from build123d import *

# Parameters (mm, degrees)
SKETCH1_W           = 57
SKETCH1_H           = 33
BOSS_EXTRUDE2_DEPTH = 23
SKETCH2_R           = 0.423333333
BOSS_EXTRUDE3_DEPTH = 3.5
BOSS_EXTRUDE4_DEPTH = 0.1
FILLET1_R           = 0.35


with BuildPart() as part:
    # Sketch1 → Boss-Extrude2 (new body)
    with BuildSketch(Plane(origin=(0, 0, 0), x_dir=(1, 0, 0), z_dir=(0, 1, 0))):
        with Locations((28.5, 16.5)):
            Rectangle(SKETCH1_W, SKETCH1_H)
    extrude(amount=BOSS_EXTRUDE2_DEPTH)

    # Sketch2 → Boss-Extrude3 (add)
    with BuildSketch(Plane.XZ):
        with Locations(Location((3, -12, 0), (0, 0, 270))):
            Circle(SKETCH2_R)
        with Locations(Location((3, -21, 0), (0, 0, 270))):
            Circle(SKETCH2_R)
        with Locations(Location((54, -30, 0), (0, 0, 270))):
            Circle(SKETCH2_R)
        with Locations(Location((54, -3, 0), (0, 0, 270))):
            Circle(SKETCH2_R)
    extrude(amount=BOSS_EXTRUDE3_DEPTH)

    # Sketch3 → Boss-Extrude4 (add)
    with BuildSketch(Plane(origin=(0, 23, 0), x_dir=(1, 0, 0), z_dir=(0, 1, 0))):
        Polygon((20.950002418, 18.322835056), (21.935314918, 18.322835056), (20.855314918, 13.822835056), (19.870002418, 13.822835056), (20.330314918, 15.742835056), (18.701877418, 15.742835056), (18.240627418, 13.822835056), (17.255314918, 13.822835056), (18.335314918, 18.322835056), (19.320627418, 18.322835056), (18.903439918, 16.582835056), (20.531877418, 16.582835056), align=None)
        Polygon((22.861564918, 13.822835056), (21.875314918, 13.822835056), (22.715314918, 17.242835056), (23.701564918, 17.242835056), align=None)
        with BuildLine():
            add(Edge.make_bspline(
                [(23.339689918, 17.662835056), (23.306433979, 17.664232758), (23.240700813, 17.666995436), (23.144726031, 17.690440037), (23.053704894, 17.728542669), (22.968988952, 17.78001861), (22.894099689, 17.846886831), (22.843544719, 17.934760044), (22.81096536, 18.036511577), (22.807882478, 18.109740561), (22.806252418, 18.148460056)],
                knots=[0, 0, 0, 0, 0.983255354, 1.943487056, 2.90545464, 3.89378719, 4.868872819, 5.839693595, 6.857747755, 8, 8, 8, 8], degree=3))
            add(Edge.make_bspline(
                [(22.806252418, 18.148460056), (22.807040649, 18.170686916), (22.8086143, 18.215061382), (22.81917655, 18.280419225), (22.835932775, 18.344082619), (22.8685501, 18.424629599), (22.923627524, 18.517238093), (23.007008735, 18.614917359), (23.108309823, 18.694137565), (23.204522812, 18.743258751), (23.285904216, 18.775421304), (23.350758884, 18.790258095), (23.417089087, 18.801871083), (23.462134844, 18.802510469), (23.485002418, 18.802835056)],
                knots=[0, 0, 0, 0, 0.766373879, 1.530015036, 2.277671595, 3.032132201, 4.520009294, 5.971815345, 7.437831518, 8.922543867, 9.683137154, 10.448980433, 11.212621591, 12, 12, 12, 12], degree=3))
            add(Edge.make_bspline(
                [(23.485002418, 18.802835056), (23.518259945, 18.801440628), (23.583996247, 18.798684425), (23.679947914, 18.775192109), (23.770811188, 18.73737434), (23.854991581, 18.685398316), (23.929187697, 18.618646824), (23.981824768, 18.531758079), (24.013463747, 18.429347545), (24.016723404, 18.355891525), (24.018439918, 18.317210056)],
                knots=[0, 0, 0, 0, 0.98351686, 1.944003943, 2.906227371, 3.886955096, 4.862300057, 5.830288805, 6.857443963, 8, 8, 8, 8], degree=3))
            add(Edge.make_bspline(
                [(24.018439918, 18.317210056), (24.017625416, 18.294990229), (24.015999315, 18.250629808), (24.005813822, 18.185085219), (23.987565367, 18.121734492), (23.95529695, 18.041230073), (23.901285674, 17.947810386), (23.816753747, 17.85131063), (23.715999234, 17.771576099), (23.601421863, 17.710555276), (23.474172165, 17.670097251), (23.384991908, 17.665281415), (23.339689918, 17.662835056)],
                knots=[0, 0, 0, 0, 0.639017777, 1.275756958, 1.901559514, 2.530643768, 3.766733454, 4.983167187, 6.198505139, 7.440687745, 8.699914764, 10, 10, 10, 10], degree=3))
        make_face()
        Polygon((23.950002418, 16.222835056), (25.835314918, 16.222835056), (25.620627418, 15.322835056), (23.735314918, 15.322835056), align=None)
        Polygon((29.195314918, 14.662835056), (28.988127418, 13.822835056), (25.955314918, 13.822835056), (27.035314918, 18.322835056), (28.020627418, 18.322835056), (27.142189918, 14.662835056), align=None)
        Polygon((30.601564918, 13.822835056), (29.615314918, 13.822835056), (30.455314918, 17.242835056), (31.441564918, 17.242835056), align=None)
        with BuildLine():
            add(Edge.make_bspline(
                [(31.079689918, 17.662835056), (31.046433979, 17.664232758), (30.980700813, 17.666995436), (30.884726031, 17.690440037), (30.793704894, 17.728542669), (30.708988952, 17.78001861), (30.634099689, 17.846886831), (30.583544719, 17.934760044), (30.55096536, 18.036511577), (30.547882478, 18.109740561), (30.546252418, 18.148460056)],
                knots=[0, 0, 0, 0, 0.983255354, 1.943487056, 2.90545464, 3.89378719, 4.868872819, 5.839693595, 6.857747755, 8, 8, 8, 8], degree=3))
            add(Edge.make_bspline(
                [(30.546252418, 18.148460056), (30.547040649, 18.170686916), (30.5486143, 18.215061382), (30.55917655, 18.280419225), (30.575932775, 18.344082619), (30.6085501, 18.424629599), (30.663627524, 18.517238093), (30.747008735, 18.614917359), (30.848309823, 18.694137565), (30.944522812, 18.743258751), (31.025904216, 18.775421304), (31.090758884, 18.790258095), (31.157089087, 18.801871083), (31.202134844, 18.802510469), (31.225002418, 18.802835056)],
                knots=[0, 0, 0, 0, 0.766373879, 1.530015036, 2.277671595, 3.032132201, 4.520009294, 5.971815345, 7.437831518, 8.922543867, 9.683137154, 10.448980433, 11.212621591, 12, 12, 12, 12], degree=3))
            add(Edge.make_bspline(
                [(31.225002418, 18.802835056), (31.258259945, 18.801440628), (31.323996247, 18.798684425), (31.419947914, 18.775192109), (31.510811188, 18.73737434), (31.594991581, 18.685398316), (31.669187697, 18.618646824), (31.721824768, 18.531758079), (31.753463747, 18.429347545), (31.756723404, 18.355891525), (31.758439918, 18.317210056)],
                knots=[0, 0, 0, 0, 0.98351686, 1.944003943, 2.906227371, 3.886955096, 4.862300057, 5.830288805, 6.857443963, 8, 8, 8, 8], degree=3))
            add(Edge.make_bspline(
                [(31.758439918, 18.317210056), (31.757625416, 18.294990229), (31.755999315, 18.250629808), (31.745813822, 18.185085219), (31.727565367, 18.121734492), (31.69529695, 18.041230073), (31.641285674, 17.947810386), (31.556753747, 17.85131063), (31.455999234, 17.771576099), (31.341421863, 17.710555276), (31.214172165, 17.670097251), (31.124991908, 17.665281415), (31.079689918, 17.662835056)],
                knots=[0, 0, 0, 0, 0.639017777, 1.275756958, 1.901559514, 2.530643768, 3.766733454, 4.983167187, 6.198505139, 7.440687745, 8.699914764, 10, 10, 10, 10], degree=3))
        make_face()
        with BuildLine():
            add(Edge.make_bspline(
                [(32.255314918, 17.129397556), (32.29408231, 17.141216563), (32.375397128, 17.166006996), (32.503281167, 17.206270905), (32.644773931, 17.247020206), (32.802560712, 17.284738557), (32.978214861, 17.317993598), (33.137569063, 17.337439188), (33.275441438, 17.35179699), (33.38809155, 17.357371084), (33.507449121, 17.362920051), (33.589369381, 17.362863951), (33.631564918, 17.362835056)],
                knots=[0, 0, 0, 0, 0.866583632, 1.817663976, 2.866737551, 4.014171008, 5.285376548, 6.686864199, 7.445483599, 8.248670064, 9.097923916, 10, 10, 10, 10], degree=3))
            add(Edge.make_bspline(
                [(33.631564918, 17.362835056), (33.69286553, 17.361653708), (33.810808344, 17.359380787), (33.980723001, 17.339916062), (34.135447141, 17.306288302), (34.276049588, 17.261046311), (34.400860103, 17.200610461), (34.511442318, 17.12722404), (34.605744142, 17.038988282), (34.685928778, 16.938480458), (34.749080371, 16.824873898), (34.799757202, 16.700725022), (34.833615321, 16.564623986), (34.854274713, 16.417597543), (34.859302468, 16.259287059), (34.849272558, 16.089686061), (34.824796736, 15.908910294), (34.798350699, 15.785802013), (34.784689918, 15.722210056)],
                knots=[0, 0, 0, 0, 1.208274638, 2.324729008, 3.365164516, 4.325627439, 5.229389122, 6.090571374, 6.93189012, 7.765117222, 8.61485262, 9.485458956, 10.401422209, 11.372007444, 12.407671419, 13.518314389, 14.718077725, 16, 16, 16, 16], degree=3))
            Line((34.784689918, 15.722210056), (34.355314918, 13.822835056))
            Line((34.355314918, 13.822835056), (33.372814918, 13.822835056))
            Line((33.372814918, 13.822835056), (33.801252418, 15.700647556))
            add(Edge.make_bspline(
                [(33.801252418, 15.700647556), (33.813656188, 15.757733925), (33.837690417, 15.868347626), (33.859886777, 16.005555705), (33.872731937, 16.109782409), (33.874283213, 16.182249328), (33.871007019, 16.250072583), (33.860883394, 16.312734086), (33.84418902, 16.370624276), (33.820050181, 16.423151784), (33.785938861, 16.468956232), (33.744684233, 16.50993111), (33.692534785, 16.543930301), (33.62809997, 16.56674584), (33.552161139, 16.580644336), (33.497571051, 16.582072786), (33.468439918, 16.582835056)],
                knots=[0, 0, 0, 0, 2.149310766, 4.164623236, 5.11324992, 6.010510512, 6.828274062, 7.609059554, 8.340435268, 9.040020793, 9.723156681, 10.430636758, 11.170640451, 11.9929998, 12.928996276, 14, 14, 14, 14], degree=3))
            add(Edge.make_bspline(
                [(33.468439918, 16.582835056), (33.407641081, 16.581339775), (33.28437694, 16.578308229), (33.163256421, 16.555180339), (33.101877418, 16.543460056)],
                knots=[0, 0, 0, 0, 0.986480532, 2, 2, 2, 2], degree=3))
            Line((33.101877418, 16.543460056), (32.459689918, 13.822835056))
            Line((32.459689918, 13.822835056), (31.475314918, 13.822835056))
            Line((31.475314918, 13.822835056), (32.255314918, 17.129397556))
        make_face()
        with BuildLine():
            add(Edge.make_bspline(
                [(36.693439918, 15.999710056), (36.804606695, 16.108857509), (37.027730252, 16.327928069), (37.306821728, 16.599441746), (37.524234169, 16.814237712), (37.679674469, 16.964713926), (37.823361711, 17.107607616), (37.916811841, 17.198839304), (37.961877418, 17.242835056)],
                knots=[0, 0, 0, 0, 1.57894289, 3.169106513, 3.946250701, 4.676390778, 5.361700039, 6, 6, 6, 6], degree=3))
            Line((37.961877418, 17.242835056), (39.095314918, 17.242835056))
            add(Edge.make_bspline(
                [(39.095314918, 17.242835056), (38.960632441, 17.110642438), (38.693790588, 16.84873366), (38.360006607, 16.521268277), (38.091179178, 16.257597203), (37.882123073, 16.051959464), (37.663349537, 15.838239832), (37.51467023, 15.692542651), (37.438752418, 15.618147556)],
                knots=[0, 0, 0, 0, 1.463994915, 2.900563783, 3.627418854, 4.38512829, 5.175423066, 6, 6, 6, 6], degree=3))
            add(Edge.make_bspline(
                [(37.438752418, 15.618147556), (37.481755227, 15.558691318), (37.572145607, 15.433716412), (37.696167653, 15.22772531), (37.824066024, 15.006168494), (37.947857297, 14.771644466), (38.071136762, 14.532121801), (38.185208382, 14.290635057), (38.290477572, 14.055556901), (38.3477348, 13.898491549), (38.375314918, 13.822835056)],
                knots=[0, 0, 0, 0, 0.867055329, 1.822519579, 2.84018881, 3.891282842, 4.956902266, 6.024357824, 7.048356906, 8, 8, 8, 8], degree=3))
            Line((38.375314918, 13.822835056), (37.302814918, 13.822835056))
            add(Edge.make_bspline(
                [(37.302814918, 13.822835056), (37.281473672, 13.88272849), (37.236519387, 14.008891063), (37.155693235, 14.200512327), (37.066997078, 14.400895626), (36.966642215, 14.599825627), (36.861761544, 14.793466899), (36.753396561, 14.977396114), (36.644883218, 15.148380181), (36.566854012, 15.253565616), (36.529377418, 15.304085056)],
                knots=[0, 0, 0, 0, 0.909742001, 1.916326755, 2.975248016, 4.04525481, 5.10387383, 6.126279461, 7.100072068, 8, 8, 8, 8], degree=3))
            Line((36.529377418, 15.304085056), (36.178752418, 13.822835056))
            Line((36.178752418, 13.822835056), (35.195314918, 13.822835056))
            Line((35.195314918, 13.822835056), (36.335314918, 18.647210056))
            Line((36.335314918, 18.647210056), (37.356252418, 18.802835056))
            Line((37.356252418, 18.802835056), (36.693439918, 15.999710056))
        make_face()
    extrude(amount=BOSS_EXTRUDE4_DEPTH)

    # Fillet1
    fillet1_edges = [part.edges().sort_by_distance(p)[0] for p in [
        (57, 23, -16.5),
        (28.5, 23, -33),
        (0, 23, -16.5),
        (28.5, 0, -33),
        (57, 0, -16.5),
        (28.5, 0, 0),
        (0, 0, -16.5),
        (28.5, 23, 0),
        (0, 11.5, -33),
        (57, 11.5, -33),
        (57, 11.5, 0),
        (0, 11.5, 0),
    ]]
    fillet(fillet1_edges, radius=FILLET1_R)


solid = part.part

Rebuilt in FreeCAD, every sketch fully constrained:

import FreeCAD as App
import Part
import Sketcher
Q = App.Units.Quantity


def edges_at(feature, points):
    """Names of the edges that pass closest to the given points."""
    edges = feature.Shape.Edges
    near = lambda p: min(range(len(edges)), key=lambda i: edges[i].distToShape(Part.Vertex(*p))[0])
    return sorted({f"Edge{near(p) + 1}" for p in points})

doc = App.newDocument("Part")
params = doc.addObject("Spreadsheet::Sheet", "Params")
for row, (alias, value) in enumerate([
    ("sketch1_width", "57 mm"),
    ("sketch1_height", "33 mm"),
    ("pad1_length", "23 mm"),
    ("pad2_length", "3.5 mm"),
    ("pad3_length", "0.1 mm"),
    ("fillet_radius", "0.35 mm"),
], start=1):
    params.set(f"A{row}", alias)
    params.set(f"B{row}", "=" + value)
    params.setAlias(f"B{row}", alias)

body = doc.addObject("PartDesign::Body", "Body")

# Sketch on XZ plane
sketch1 = body.newObject("Sketcher::SketchObject", "Sketch")
sketch1.AttachmentSupport = (doc.getObject("XZ_Plane"), [""])
sketch1.MapMode = "FlatFace"
sketch1.addGeometry([
    Part.LineSegment(App.Vector(0, -33, 0), App.Vector(0, 0, 0)),
    Part.LineSegment(App.Vector(0, 0, 0), App.Vector(57, 0, 0)),
    Part.LineSegment(App.Vector(57, 0, 0), App.Vector(57, -33, 0)),
    Part.LineSegment(App.Vector(57, -33, 0), App.Vector(0, -33, 0)),
], False)
sketch1.addConstraint([
    Sketcher.Constraint("Coincident", 0, 2, 1, 1),
    Sketcher.Constraint("Coincident", 1, 2, 2, 1),
    Sketcher.Constraint("Coincident", 2, 2, 3, 1),
    Sketcher.Constraint("Coincident", 3, 2, 0, 1),
    Sketcher.Constraint("Vertical", 0),
    Sketcher.Constraint("Horizontal", 1),
    Sketcher.Constraint("Vertical", 2),
    Sketcher.Constraint("Horizontal", 3),
    Sketcher.Constraint("Coincident", 0, 2, -1, 1),
    Sketcher.Constraint("DistanceX", 1, 1, 1, 2, Q("57 mm")),
    Sketcher.Constraint("DistanceY", 0, 1, 0, 2, Q("33 mm")),
])
sketch1.setExpression("Constraints[9]", "Params.sketch1_width")
sketch1.setExpression("Constraints[10]", "Params.sketch1_height")
pad1 = body.newObject("PartDesign::Pad", "Pad")
pad1.Profile = sketch1
pad1.setExpression("Length", "Params.pad1_length")
pad1.Reversed = True

# Sketch on XZ plane
sketch2 = body.newObject("Sketcher::SketchObject", "Sketch001")
sketch2.AttachmentSupport = (doc.getObject("XZ_Plane"), [""])
sketch2.MapMode = "FlatFace"
sketch2.addGeometry([
    Part.Circle(App.Vector(3, -12, 0), App.Vector(0, 0, 1), 0.42),
    Part.Circle(App.Vector(3, -21, 0), App.Vector(0, 0, 1), 0.42),
    Part.Circle(App.Vector(54, -30, 0), App.Vector(0, 0, 1), 0.42),
    Part.Circle(App.Vector(54, -3, 0), App.Vector(0, 0, 1), 0.42),
], False)
sketch2.addConstraint([
    Sketcher.Constraint("Equal", 0, 1),
    Sketcher.Constraint("Equal", 1, 2),
    Sketcher.Constraint("Equal", 2, 3),
    Sketcher.Constraint("Vertical", 0, 3, 1, 3),
    Sketcher.Constraint("Vertical", 2, 3, 3, 3),
    Sketcher.Constraint("DistanceX", -1, 1, 0, 3, Q("3 mm")),
    Sketcher.Constraint("DistanceY", 0, 3, -1, 1, Q("12 mm")),
    Sketcher.Constraint("DistanceY", 1, 3, -1, 1, Q("21 mm")),
    Sketcher.Constraint("DistanceX", -1, 1, 2, 3, Q("54 mm")),
    Sketcher.Constraint("DistanceY", 2, 3, -1, 1, Q("30 mm")),
    Sketcher.Constraint("DistanceY", 3, 3, -1, 1, Q("3 mm")),
    Sketcher.Constraint("Diameter", 0, Q("0.846667 mm")),
])
pad2 = body.newObject("PartDesign::Pad", "Pad001")
pad2.Profile = sketch2
pad2.setExpression("Length", "Params.pad2_length")

# Sketch on XZ plane
sketch3 = body.newObject("Sketcher::SketchObject", "Sketch002")
sketch3.AttachmentSupport = (doc.getObject("XZ_Plane"), [""])
sketch3.MapMode = "FlatFace"
sketch3.AttachmentOffset = App.Placement(App.Vector(0, 0, -23), App.Rotation())
sketch3.addGeometry([
    Part.LineSegment(App.Vector(21.935315, -18.322835, 0), App.Vector(20.950002, -18.322835, 0)),  # 0
    Part.LineSegment(App.Vector(20.950002, -18.322835, 0), App.Vector(20.531877, -16.582835, 0)),  # 1
    Part.LineSegment(App.Vector(20.531877, -16.582835, 0), App.Vector(18.90344, -16.582835, 0)),  # 2
    Part.LineSegment(App.Vector(18.90344, -16.582835, 0), App.Vector(19.320627, -18.322835, 0)),  # 3
    Part.LineSegment(App.Vector(19.320627, -18.322835, 0), App.Vector(18.335315, -18.322835, 0)),  # 4
    Part.LineSegment(App.Vector(18.335315, -18.322835, 0), App.Vector(17.255315, -13.822835, 0)),  # 5
    Part.LineSegment(App.Vector(17.255315, -13.822835, 0), App.Vector(18.240627, -13.822835, 0)),  # 6
    Part.LineSegment(App.Vector(18.240627, -13.822835, 0), App.Vector(18.701877, -15.742835, 0)),  # 7
    Part.LineSegment(App.Vector(18.701877, -15.742835, 0), App.Vector(20.330315, -15.742835, 0)),  # 8
    Part.LineSegment(App.Vector(20.330315, -15.742835, 0), App.Vector(19.870002, -13.822835, 0)),  # 9
    Part.LineSegment(App.Vector(19.870002, -13.822835, 0), App.Vector(20.855315, -13.822835, 0)),  # 10
    Part.LineSegment(App.Vector(20.855315, -13.822835, 0), App.Vector(21.935315, -18.322835, 0)),  # 11
    Part.LineSegment(App.Vector(21.875315, -13.822835, 0), App.Vector(22.861565, -13.822835, 0)),  # 12
    Part.LineSegment(App.Vector(22.861565, -13.822835, 0), App.Vector(23.701565, -17.242835, 0)),  # 13
    Part.LineSegment(App.Vector(23.701565, -17.242835, 0), App.Vector(22.715315, -17.242835, 0)),  # 14
    Part.LineSegment(App.Vector(22.715315, -17.242835, 0), App.Vector(21.875315, -13.822835, 0)),  # 15
    Part.BSplineCurve([App.Vector(23.33969, -17.662835, 0), App.Vector(23.306434, -17.664233, 0), App.Vector(23.240701, -17.666995, 0), App.Vector(23.144726, -17.69044, 0), App.Vector(23.053705, -17.728543, 0), App.Vector(22.968989, -17.780019, 0), App.Vector(22.8941, -17.846887, 0), App.Vector(22.843545, -17.93476, 0), App.Vector(22.810965, -18.036512, 0), App.Vector(22.807882, -18.109741, 0), App.Vector(22.806252, -18.14846, 0)], [4, 1, 1, 1, 1, 1, 1, 1, 4], [0, 0.983255354, 1.943487056, 2.90545464, 3.89378719, 4.868872819, 5.839693595, 6.857747755, 8], False, 3, [1, 1, 1, 1, 1, 1, 1, 1, 1, 1, 1], False),  # 16
    Part.BSplineCurve([App.Vector(24.01844, -18.31721, 0), App.Vector(24.017625, -18.29499, 0), App.Vector(24.015999, -18.25063, 0), App.Vector(24.005814, -18.185085, 0), App.Vector(23.987565, -18.121734, 0), App.Vector(23.955297, -18.04123, 0), App.Vector(23.901286, -17.94781, 0), App.Vector(23.816754, -17.851311, 0), App.Vector(23.715999, -17.771576, 0), App.Vector(23.601422, -17.710555, 0), App.Vector(23.474172, -17.670097, 0), App.Vector(23.384992, -17.665281, 0), App.Vector(23.33969, -17.662835, 0)], [4, 1, 1, 1, 1, 1, 1, 1, 1, 1, 4], [0, 0.639017777, 1.275756958, 1.901559514, 2.530643768, 3.766733454, 4.983167187, 6.198505139, 7.440687745, 8.699914764, 10], False, 3, [1, 1, 1, 1, 1, 1, 1, 1, 1, 1, 1, 1, 1], False),  # 17
    Part.BSplineCurve([App.Vector(23.485002, -18.802835, 0), App.Vector(23.51826, -18.801441, 0), App.Vector(23.583996, -18.798684, 0), App.Vector(23.679948, -18.775192, 0), App.Vector(23.770811, -18.737374, 0), App.Vector(23.854992, -18.685398, 0), App.Vector(23.929188, -18.618647, 0), App.Vector(23.981825, -18.531758, 0), App.Vector(24.013464, -18.429348, 0), App.Vector(24.016723, -18.355892, 0), App.Vector(24.01844, -18.31721, 0)], [4, 1, 1, 1, 1, 1, 1, 1, 4], [0, 0.98351686, 1.944003943, 2.906227371, 3.886955096, 4.862300057, 5.830288805, 6.857443963, 8], False, 3, [1, 1, 1, 1, 1, 1, 1, 1, 1, 1, 1], False),  # 18
    Part.BSplineCurve([App.Vector(22.806252, -18.14846, 0), App.Vector(22.807041, -18.170687, 0), App.Vector(22.808614, -18.215061, 0), App.Vector(22.819177, -18.280419, 0), App.Vector(22.835933, -18.344083, 0), App.Vector(22.86855, -18.42463, 0), App.Vector(22.923628, -18.517238, 0), App.Vector(23.007009, -18.614917, 0), App.Vector(23.10831, -18.694138, 0), App.Vector(23.204523, -18.743259, 0), App.Vector(23.285904, -18.775421, 0), App.Vector(23.350759, -18.790258, 0), App.Vector(23.417089, -18.801871, 0), App.Vector(23.462135, -18.80251, 0), App.Vector(23.485002, -18.802835, 0)], [4, 1, 1, 1, 1, 1, 1, 1, 1, 1, 1, 1, 4], [0, 0.766373879, 1.530015036, 2.277671595, 3.032132201, 4.520009294, 5.971815345, 7.437831518, 8.922543867, 9.683137154, 10.448980433, 11.212621591, 12], False, 3, [1, 1, 1, 1, 1, 1, 1, 1, 1, 1, 1, 1, 1, 1, 1], False),  # 19
    Part.LineSegment(App.Vector(25.835315, -16.222835, 0), App.Vector(23.950002, -16.222835, 0)),  # 20
    Part.LineSegment(App.Vector(23.950002, -16.222835, 0), App.Vector(23.735315, -15.322835, 0)),  # 21
    Part.LineSegment(App.Vector(23.735315, -15.322835, 0), App.Vector(25.620627, -15.322835, 0)),  # 22
    Part.LineSegment(App.Vector(25.620627, -15.322835, 0), App.Vector(25.835315, -16.222835, 0)),  # 23
    Part.LineSegment(App.Vector(28.988127, -13.822835, 0), App.Vector(29.195315, -14.662835, 0)),  # 24
    Part.LineSegment(App.Vector(29.195315, -14.662835, 0), App.Vector(27.14219, -14.662835, 0)),  # 25
    Part.LineSegment(App.Vector(27.14219, -14.662835, 0), App.Vector(28.020627, -18.322835, 0)),  # 26
    Part.LineSegment(App.Vector(28.020627, -18.322835, 0), App.Vector(27.035315, -18.322835, 0)),  # 27
    Part.LineSegment(App.Vector(27.035315, -18.322835, 0), App.Vector(25.955315, -13.822835, 0)),  # 28
    Part.LineSegment(App.Vector(25.955315, -13.822835, 0), App.Vector(28.988127, -13.822835, 0)),  # 29
    Part.LineSegment(App.Vector(29.615315, -13.822835, 0), App.Vector(30.601565, -13.822835, 0)),  # 30
    Part.LineSegment(App.Vector(30.601565, -13.822835, 0), App.Vector(31.441565, -17.242835, 0)),  # 31
    Part.LineSegment(App.Vector(31.441565, -17.242835, 0), App.Vector(30.455315, -17.242835, 0)),  # 32
    Part.LineSegment(App.Vector(30.455315, -17.242835, 0), App.Vector(29.615315, -13.822835, 0)),  # 33
    Part.BSplineCurve([App.Vector(31.07969, -17.662835, 0), App.Vector(31.046434, -17.664233, 0), App.Vector(30.980701, -17.666995, 0), App.Vector(30.884726, -17.69044, 0), App.Vector(30.793705, -17.728543, 0), App.Vector(30.708989, -17.780019, 0), App.Vector(30.6341, -17.846887, 0), App.Vector(30.583545, -17.93476, 0), App.Vector(30.550965, -18.036512, 0), App.Vector(30.547882, -18.109741, 0), App.Vector(30.546252, -18.14846, 0)], [4, 1, 1, 1, 1, 1, 1, 1, 4], [0, 0.983255354, 1.943487056, 2.90545464, 3.89378719, 4.868872819, 5.839693595, 6.857747755, 8], False, 3, [1, 1, 1, 1, 1, 1, 1, 1, 1, 1, 1], False),  # 34
    Part.BSplineCurve([App.Vector(31.75844, -18.31721, 0), App.Vector(31.757625, -18.29499, 0), App.Vector(31.755999, -18.25063, 0), App.Vector(31.745814, -18.185085, 0), App.Vector(31.727565, -18.121734, 0), App.Vector(31.695297, -18.04123, 0), App.Vector(31.641286, -17.94781, 0), App.Vector(31.556754, -17.851311, 0), App.Vector(31.455999, -17.771576, 0), App.Vector(31.341422, -17.710555, 0), App.Vector(31.214172, -17.670097, 0), App.Vector(31.124992, -17.665281, 0), App.Vector(31.07969, -17.662835, 0)], [4, 1, 1, 1, 1, 1, 1, 1, 1, 1, 4], [0, 0.639017777, 1.275756958, 1.901559514, 2.530643768, 3.766733454, 4.983167187, 6.198505139, 7.440687745, 8.699914764, 10], False, 3, [1, 1, 1, 1, 1, 1, 1, 1, 1, 1, 1, 1, 1], False),  # 35
    Part.BSplineCurve([App.Vector(31.225002, -18.802835, 0), App.Vector(31.25826, -18.801441, 0), App.Vector(31.323996, -18.798684, 0), App.Vector(31.419948, -18.775192, 0), App.Vector(31.510811, -18.737374, 0), App.Vector(31.594992, -18.685398, 0), App.Vector(31.669188, -18.618647, 0), App.Vector(31.721825, -18.531758, 0), App.Vector(31.753464, -18.429348, 0), App.Vector(31.756723, -18.355892, 0), App.Vector(31.75844, -18.31721, 0)], [4, 1, 1, 1, 1, 1, 1, 1, 4], [0, 0.98351686, 1.944003943, 2.906227371, 3.886955096, 4.862300057, 5.830288805, 6.857443963, 8], False, 3, [1, 1, 1, 1, 1, 1, 1, 1, 1, 1, 1], False),  # 36
    Part.BSplineCurve([App.Vector(30.546252, -18.14846, 0), App.Vector(30.547041, -18.170687, 0), App.Vector(30.548614, -18.215061, 0), App.Vector(30.559177, -18.280419, 0), App.Vector(30.575933, -18.344083, 0), App.Vector(30.60855, -18.42463, 0), App.Vector(30.663628, -18.517238, 0), App.Vector(30.747009, -18.614917, 0), App.Vector(30.84831, -18.694138, 0), App.Vector(30.944523, -18.743259, 0), App.Vector(31.025904, -18.775421, 0), App.Vector(31.090759, -18.790258, 0), App.Vector(31.157089, -18.801871, 0), App.Vector(31.202135, -18.80251, 0), App.Vector(31.225002, -18.802835, 0)], [4, 1, 1, 1, 1, 1, 1, 1, 1, 1, 1, 1, 4], [0, 0.766373879, 1.530015036, 2.277671595, 3.032132201, 4.520009294, 5.971815345, 7.437831518, 8.922543867, 9.683137154, 10.448980433, 11.212621591, 12], False, 3, [1, 1, 1, 1, 1, 1, 1, 1, 1, 1, 1, 1, 1, 1, 1], False),  # 37
    Part.BSplineCurve([App.Vector(32.255315, -17.129398, 0), App.Vector(32.294082, -17.141217, 0), App.Vector(32.375397, -17.166007, 0), App.Vector(32.503281, -17.206271, 0), App.Vector(32.644774, -17.24702, 0), App.Vector(32.802561, -17.284739, 0), App.Vector(32.978215, -17.317994, 0), App.Vector(33.137569, -17.337439, 0), App.Vector(33.275441, -17.351797, 0), App.Vector(33.388092, -17.357371, 0), App.Vector(33.507449, -17.36292, 0), App.Vector(33.589369, -17.362864, 0), App.Vector(33.631565, -17.362835, 0)], [4, 1, 1, 1, 1, 1, 1, 1, 1, 1, 4], [0, 0.866583632, 1.817663976, 2.866737551, 4.014171008, 5.285376548, 6.686864199, 7.445483599, 8.248670064, 9.097923916, 10], False, 3, [1, 1, 1, 1, 1, 1, 1, 1, 1, 1, 1, 1, 1], False),  # 38
    Part.LineSegment(App.Vector(32.255315, -17.129398, 0), App.Vector(31.475315, -13.822835, 0)),  # 39
    Part.LineSegment(App.Vector(31.475315, -13.822835, 0), App.Vector(32.45969, -13.822835, 0)),  # 40
    Part.LineSegment(App.Vector(32.45969, -13.822835, 0), App.Vector(33.101877, -16.54346, 0)),  # 41
    Part.BSplineCurve([App.Vector(33.46844, -16.582835, 0), App.Vector(33.407641, -16.58134, 0), App.Vector(33.284377, -16.578308, 0), App.Vector(33.163256, -16.55518, 0), App.Vector(33.101877, -16.54346, 0)], [4, 1, 4], [0, 0.986480532, 2], False, 3, [1, 1, 1, 1, 1], False),  # 42
    Part.BSplineCurve([App.Vector(33.801252, -15.700648, 0), App.Vector(33.813656, -15.757734, 0), App.Vector(33.83769, -15.868348, 0), App.Vector(33.859887, -16.005556, 0), App.Vector(33.872732, -16.109782, 0), App.Vector(33.874283, -16.182249, 0), App.Vector(33.871007, -16.250073, 0), App.Vector(33.860883, -16.312734, 0), App.Vector(33.844189, -16.370624, 0), App.Vector(33.82005, -16.423152, 0), App.Vector(33.785939, -16.468956, 0), App.Vector(33.744684, -16.509931, 0), App.Vector(33.692535, -16.54393, 0), App.Vector(33.6281, -16.566746, 0), App.Vector(33.552161, -16.580644, 0), App.Vector(33.497571, -16.582073, 0), App.Vector(33.46844, -16.582835, 0)], [4, 1, 1, 1, 1, 1, 1, 1, 1, 1, 1, 1, 1, 1, 4], [0, 2.149310766, 4.164623236, 5.11324992, 6.010510512, 6.828274062, 7.609059554, 8.340435268, 9.040020793, 9.723156681, 10.430636758, 11.170640451, 11.9929998, 12.928996276, 14], False, 3, [1, 1, 1, 1, 1, 1, 1, 1, 1, 1, 1, 1, 1, 1, 1, 1, 1], False),  # 43
    Part.LineSegment(App.Vector(33.801252, -15.700648, 0), App.Vector(33.372815, -13.822835, 0)),  # 44
    Part.LineSegment(App.Vector(33.372815, -13.822835, 0), App.Vector(34.355315, -13.822835, 0)),  # 45
    Part.LineSegment(App.Vector(34.355315, -13.822835, 0), App.Vector(34.78469, -15.72221, 0)),  # 46
    Part.BSplineCurve([App.Vector(33.631565, -17.362835, 0), App.Vector(33.692866, -17.361654, 0), App.Vector(33.810808, -17.359381, 0), App.Vector(33.980723, -17.339916, 0), App.Vector(34.135447, -17.306288, 0), App.Vector(34.27605, -17.261046, 0), App.Vector(34.40086, -17.20061, 0), App.Vector(34.511442, -17.127224, 0), App.Vector(34.605744, -17.038988, 0), App.Vector(34.685929, -16.93848, 0), App.Vector(34.74908, -16.824874, 0), App.Vector(34.799757, -16.700725, 0), App.Vector(34.833615, -16.564624, 0), App.Vector(34.854275, -16.417598, 0), App.Vector(34.859302, -16.259287, 0), App.Vector(34.849273, -16.089686, 0), App.Vector(34.824797, -15.90891, 0), App.Vector(34.798351, -15.785802, 0), App.Vector(34.78469, -15.72221, 0)], [4, 1, 1, 1, 1, 1, 1, 1, 1, 1, 1, 1, 1, 1, 1, 1, 4], [0, 1.208274638, 2.324729008, 3.365164516, 4.325627439, 5.229389122, 6.090571374, 6.93189012, 7.765117222, 8.61485262, 9.485458956, 10.401422209, 11.372007444, 12.407671419, 13.518314389, 14.718077725, 16], False, 3, [1, 1, 1, 1, 1, 1, 1, 1, 1, 1, 1, 1, 1, 1, 1, 1, 1, 1, 1], False),  # 47
    Part.BSplineCurve([App.Vector(36.69344, -15.99971, 0), App.Vector(36.804607, -16.108858, 0), App.Vector(37.02773, -16.327928, 0), App.Vector(37.306822, -16.599442, 0), App.Vector(37.524234, -16.814238, 0), App.Vector(37.679674, -16.964714, 0), App.Vector(37.823362, -17.107608, 0), App.Vector(37.916812, -17.198839, 0), App.Vector(37.961877, -17.242835, 0)], [4, 1, 1, 1, 1, 1, 4], [0, 1.57894289, 3.169106513, 3.946250701, 4.676390778, 5.361700039, 6], False, 3, [1, 1, 1, 1, 1, 1, 1, 1, 1], False),  # 48
    Part.LineSegment(App.Vector(36.69344, -15.99971, 0), App.Vector(37.356252, -18.802835, 0)),  # 49
    Part.LineSegment(App.Vector(37.356252, -18.802835, 0), App.Vector(36.335315, -18.64721, 0)),  # 50
    Part.LineSegment(App.Vector(36.335315, -18.64721, 0), App.Vector(35.195315, -13.822835, 0)),  # 51
    Part.LineSegment(App.Vector(35.195315, -13.822835, 0), App.Vector(36.178752, -13.822835, 0)),  # 52
    Part.LineSegment(App.Vector(36.178752, -13.822835, 0), App.Vector(36.529377, -15.304085, 0)),  # 53
    Part.BSplineCurve([App.Vector(37.302815, -13.822835, 0), App.Vector(37.281474, -13.882728, 0), App.Vector(37.236519, -14.008891, 0), App.Vector(37.155693, -14.200512, 0), App.Vector(37.066997, -14.400896, 0), App.Vector(36.966642, -14.599826, 0), App.Vector(36.861762, -14.793467, 0), App.Vector(36.753397, -14.977396, 0), App.Vector(36.644883, -15.14838, 0), App.Vector(36.566854, -15.253566, 0), App.Vector(36.529377, -15.304085, 0)], [4, 1, 1, 1, 1, 1, 1, 1, 4], [0, 0.909742001, 1.916326755, 2.975248016, 4.04525481, 5.10387383, 6.126279461, 7.100072068, 8], False, 3, [1, 1, 1, 1, 1, 1, 1, 1, 1, 1, 1], False),  # 54
    Part.LineSegment(App.Vector(37.302815, -13.822835, 0), App.Vector(38.375315, -13.822835, 0)),  # 55
    Part.BSplineCurve([App.Vector(37.438752, -15.618148, 0), App.Vector(37.481755, -15.558691, 0), App.Vector(37.572146, -15.433716, 0), App.Vector(37.696168, -15.227725, 0), App.Vector(37.824066, -15.006168, 0), App.Vector(37.947857, -14.771644, 0), App.Vector(38.071137, -14.532122, 0), App.Vector(38.185208, -14.290635, 0), App.Vector(38.290478, -14.055557, 0), App.Vector(38.347735, -13.898492, 0), App.Vector(38.375315, -13.822835, 0)], [4, 1, 1, 1, 1, 1, 1, 1, 4], [0, 0.867055329, 1.822519579, 2.84018881, 3.891282842, 4.956902266, 6.024357824, 7.048356906, 8], False, 3, [1, 1, 1, 1, 1, 1, 1, 1, 1, 1, 1], False),  # 56
    Part.BSplineCurve([App.Vector(39.095315, -17.242835, 0), App.Vector(38.960632, -17.110642, 0), App.Vector(38.693791, -16.848734, 0), App.Vector(38.360007, -16.521268, 0), App.Vector(38.091179, -16.257597, 0), App.Vector(37.882123, -16.051959, 0), App.Vector(37.66335, -15.83824, 0), App.Vector(37.51467, -15.692543, 0), App.Vector(37.438752, -15.618148, 0)], [4, 1, 1, 1, 1, 1, 4], [0, 1.463994915, 2.900563783, 3.627418854, 4.38512829, 5.175423066, 6], False, 3, [1, 1, 1, 1, 1, 1, 1, 1, 1], False),  # 57
    Part.LineSegment(App.Vector(39.095315, -17.242835, 0), App.Vector(37.961877, -17.242835, 0)),  # 58
], False)
sketch3.addConstraint([
    Sketcher.Constraint("Block", 16),
    Sketcher.Constraint("Block", 17),
    Sketcher.Constraint("Block", 18),
    Sketcher.Constraint("Block", 19),
    Sketcher.Constraint("Block", 34),
    Sketcher.Constraint("Block", 35),
    Sketcher.Constraint("Block", 36),
    Sketcher.Constraint("Block", 37),
    Sketcher.Constraint("Block", 38),
    Sketcher.Constraint("Block", 42),
    Sketcher.Constraint("Block", 43),
    Sketcher.Constraint("Block", 47),
    Sketcher.Constraint("Block", 48),
    Sketcher.Constraint("Block", 54),
    Sketcher.Constraint("Block", 56),
    Sketcher.Constraint("Block", 57),
    Sketcher.Constraint("Coincident", 0, 2, 1, 1),
    Sketcher.Constraint("Coincident", 1, 2, 2, 1),
    Sketcher.Constraint("Coincident", 2, 2, 3, 1),
    Sketcher.Constraint("Coincident", 3, 2, 4, 1),
    Sketcher.Constraint("Coincident", 4, 2, 5, 1),
    Sketcher.Constraint("Coincident", 5, 2, 6, 1),
    Sketcher.Constraint("Coincident", 6, 2, 7, 1),
    Sketcher.Constraint("Coincident", 7, 2, 8, 1),
    Sketcher.Constraint("Coincident", 8, 2, 9, 1),
    Sketcher.Constraint("Coincident", 9, 2, 10, 1),
    Sketcher.Constraint("Coincident", 10, 2, 11, 1),
    Sketcher.Constraint("Coincident", 11, 2, 0, 1),
    Sketcher.Constraint("Coincident", 12, 2, 13, 1),
    Sketcher.Constraint("Coincident", 13, 2, 14, 1),
    Sketcher.Constraint("Coincident", 14, 2, 15, 1),
    Sketcher.Constraint("Coincident", 15, 2, 12, 1),
    Sketcher.Constraint("Coincident", 20, 2, 21, 1),
    Sketcher.Constraint("Coincident", 21, 2, 22, 1),
    Sketcher.Constraint("Coincident", 22, 2, 23, 1),
    Sketcher.Constraint("Coincident", 23, 2, 20, 1),
    Sketcher.Constraint("Coincident", 24, 2, 25, 1),
    Sketcher.Constraint("Coincident", 25, 2, 26, 1),
    Sketcher.Constraint("Coincident", 26, 2, 27, 1),
    Sketcher.Constraint("Coincident", 27, 2, 28, 1),
    Sketcher.Constraint("Coincident", 28, 2, 29, 1),
    Sketcher.Constraint("Coincident", 29, 2, 24, 1),
    Sketcher.Constraint("Coincident", 30, 2, 31, 1),
    Sketcher.Constraint("Coincident", 31, 2, 32, 1),
    Sketcher.Constraint("Coincident", 32, 2, 33, 1),
    Sketcher.Constraint("Coincident", 33, 2, 30, 1),
    Sketcher.Constraint("Coincident", 38, 1, 39, 1),
    Sketcher.Constraint("Coincident", 39, 2, 40, 1),
    Sketcher.Constraint("Coincident", 40, 2, 41, 1),
    Sketcher.Constraint("Coincident", 41, 2, 42, 2),
    Sketcher.Constraint("Coincident", 43, 1, 44, 1),
    Sketcher.Constraint("Coincident", 44, 2, 45, 1),
    Sketcher.Constraint("Coincident", 45, 2, 46, 1),
    Sketcher.Constraint("Coincident", 46, 2, 47, 2),
    Sketcher.Constraint("Coincident", 48, 1, 49, 1),
    Sketcher.Constraint("Coincident", 49, 2, 50, 1),
    Sketcher.Constraint("Coincident", 50, 2, 51, 1),
    Sketcher.Constraint("Coincident", 51, 2, 52, 1),
    Sketcher.Constraint("Coincident", 52, 2, 53, 1),
    Sketcher.Constraint("Coincident", 53, 2, 54, 2),
    Sketcher.Constraint("Coincident", 54, 1, 55, 1),
    Sketcher.Constraint("Coincident", 55, 2, 56, 2),
    Sketcher.Constraint("Coincident", 57, 1, 58, 1),
    Sketcher.Constraint("Coincident", 58, 2, 48, 2),
    Sketcher.Constraint("Horizontal", 0),
    Sketcher.Constraint("Horizontal", 2),
    Sketcher.Constraint("Horizontal", 4),
    Sketcher.Constraint("Horizontal", 6),
    Sketcher.Constraint("Horizontal", 8),
    Sketcher.Constraint("Horizontal", 10),
    Sketcher.Constraint("Horizontal", 12),
    Sketcher.Constraint("Horizontal", 14),
    Sketcher.Constraint("Horizontal", 20),
    Sketcher.Constraint("Horizontal", 22),
    Sketcher.Constraint("Horizontal", 25),
    Sketcher.Constraint("Horizontal", 27),
    Sketcher.Constraint("Horizontal", 29),
    Sketcher.Constraint("Horizontal", 30),
    Sketcher.Constraint("Horizontal", 32),
    Sketcher.Constraint("Horizontal", 40),
    Sketcher.Constraint("Horizontal", 45),
    Sketcher.Constraint("Horizontal", 52),
    Sketcher.Constraint("Parallel", 5, 11),
    Sketcher.Constraint("Parallel", 13, 15),
    Sketcher.Constraint("Parallel", 21, 23),
    Sketcher.Constraint("Parallel", 11, 28),
    Sketcher.Constraint("Parallel", 15, 31),
    Sketcher.Constraint("Parallel", 31, 33),
    Sketcher.Constraint("Horizontal", 0, 2, 3, 2),
    Sketcher.Constraint("Horizontal", 6, 2, 9, 2),
    Sketcher.Constraint("Horizontal", 10, 2, 12, 2),
    Sketcher.Constraint("Horizontal", 11, 2, 26, 2),
    Sketcher.Constraint("Horizontal", 15, 2, 28, 2),
    Sketcher.Constraint("Horizontal", 29, 2, 30, 2),
    Sketcher.Constraint("Horizontal", 14, 2, 31, 2),
    Sketcher.Constraint("Horizontal", 33, 2, 39, 2),
    Sketcher.Constraint("Horizontal", 40, 2, 44, 2),
    Sketcher.Constraint("Horizontal", 45, 2, 51, 2),
    Sketcher.Constraint("Horizontal", 52, 2, 55, 2),
    Sketcher.Constraint("Horizontal", 32, 2, 58, 2),
    Sketcher.Constraint("Equal", 0, 4),
    Sketcher.Constraint("Equal", 4, 6),
    Sketcher.Constraint("Equal", 2, 8),
    Sketcher.Constraint("Equal", 6, 10),
    Sketcher.Constraint("Equal", 10, 27),
    Sketcher.Constraint("Equal", 14, 30),
    Sketcher.Constraint("DistanceY", 26, 2, 22, 2, Q("3 mm")),
    Sketcher.Constraint("DistanceY", 4, 2, 5, 2, Q("4.5 mm")),
    Sketcher.Constraint("DistanceY", 13, 2, 8, 2, Q("1.5 mm")),
    Sketcher.Constraint("DistanceY", 20, 2, 12, 2, Q("2.4 mm")),
    Sketcher.Constraint("DistanceX", 21, 2, 23, 2, Q("2.1 mm")),
    Sketcher.Constraint("DistanceX", 22, 2, 26, 2, Q("2.4 mm")),
    Sketcher.Constraint("DistanceX", 23, 2, 27, 2, Q("1.2 mm")),
    Sketcher.Constraint("DistanceY", 0, 2, 1, 2, Q("1.74 mm")),
    Sketcher.Constraint("DistanceX", 5, 2, 4, 2, Q("1.08 mm")),
    Sketcher.Constraint("DistanceX", 7, 2, 1, 2, Q("1.83 mm")),
    Sketcher.Constraint("DistanceX", 12, 2, 13, 2, Q("0.84 mm")),
    Sketcher.Constraint("DistanceX", 11, 2, 14, 2, Q("0.78 mm")),
    Sketcher.Constraint("DistanceX", 14, 2, 21, 2, Q("1.02 mm")),
    Sketcher.Constraint("DistanceY", 22, 2, 24, 2, Q("0.66 mm")),
    Sketcher.Constraint("DistanceX", 23, 2, 24, 2, Q("3.36 mm")),
    Sketcher.Constraint("DistanceX", 24, 2, 32, 2, Q("1.26 mm")),
    Sketcher.Constraint("DistanceX", 33, 2, 39, 2, Q("1.86 mm")),
    Sketcher.Constraint("DistanceX", 39, 2, 45, 2, Q("2.88 mm")),
    Sketcher.Constraint("DistanceY", 49, 2, 45, 2, Q("4.98 mm")),
    Sketcher.Constraint("DistanceX", 45, 2, 50, 2, Q("1.98 mm")),
    Sketcher.Constraint("DistanceX", 45, 2, 51, 2, Q("0.84 mm")),
    Sketcher.Constraint("DistanceX", 51, 2, 55, 2, Q("3.18 mm")),
    Sketcher.Constraint("DistanceX", 45, 1, 45, 2, Q("0.9825 mm")),
    Sketcher.Constraint("DistanceX", 8, 2, 10, 2, Q("0.525 mm")),
    Sketcher.Constraint("DistanceX", 40, 2, 46, 2, Q("2.325 mm")),
    Sketcher.Constraint("DistanceY", 50, 2, 46, 2, Q("2.925 mm")),
    Sketcher.Constraint("DistanceX", 12, 1, 12, 2, Q("0.98625 mm")),
    Sketcher.Constraint("DistanceX", 22, 2, 29, 2, Q("3.3675 mm")),
    Sketcher.Constraint("Distance", 9, Q("1.974408 mm")),
    Sketcher.Constraint("Distance", 26, Q("3.763941 mm")),
    Sketcher.Constraint("Distance", 49, Q("2.880422 mm")),
    Sketcher.Constraint("DistanceX", 2, 2, 2, 1, Q("1.628438 mm")),
    Sketcher.Constraint("DistanceX", 52, 1, 52, 2, Q("0.983438 mm")),
    Sketcher.Constraint("DistanceX", 3, 2, 1, 2, Q("1.21125 mm")),
])
pad3 = body.newObject("PartDesign::Pad", "Pad002")
pad3.Profile = sketch3
pad3.setExpression("Length", "Params.pad3_length")
pad3.Reversed = True
doc.recompute()

fillet = body.newObject("PartDesign::Fillet", "Fillet")
fillet.Base = (pad3, edges_at(pad3, [
    (57, 23, -16.5),
    (28.5, 23, -33),
    (0, 23, -16.5),
    (28.5, 0, -33),
    (57, 0, -16.5),
    (28.5, 0, 0),
    (0, 0, -16.5),
    (28.5, 23, 0),
    (0, 11.5, -33),
    (57, 11.5, -33),
    (57, 11.5, 0),
    (0, 11.5, 0),
]))
fillet.setExpression("Radius", "Params.fillet_radius")

doc.recompute()
